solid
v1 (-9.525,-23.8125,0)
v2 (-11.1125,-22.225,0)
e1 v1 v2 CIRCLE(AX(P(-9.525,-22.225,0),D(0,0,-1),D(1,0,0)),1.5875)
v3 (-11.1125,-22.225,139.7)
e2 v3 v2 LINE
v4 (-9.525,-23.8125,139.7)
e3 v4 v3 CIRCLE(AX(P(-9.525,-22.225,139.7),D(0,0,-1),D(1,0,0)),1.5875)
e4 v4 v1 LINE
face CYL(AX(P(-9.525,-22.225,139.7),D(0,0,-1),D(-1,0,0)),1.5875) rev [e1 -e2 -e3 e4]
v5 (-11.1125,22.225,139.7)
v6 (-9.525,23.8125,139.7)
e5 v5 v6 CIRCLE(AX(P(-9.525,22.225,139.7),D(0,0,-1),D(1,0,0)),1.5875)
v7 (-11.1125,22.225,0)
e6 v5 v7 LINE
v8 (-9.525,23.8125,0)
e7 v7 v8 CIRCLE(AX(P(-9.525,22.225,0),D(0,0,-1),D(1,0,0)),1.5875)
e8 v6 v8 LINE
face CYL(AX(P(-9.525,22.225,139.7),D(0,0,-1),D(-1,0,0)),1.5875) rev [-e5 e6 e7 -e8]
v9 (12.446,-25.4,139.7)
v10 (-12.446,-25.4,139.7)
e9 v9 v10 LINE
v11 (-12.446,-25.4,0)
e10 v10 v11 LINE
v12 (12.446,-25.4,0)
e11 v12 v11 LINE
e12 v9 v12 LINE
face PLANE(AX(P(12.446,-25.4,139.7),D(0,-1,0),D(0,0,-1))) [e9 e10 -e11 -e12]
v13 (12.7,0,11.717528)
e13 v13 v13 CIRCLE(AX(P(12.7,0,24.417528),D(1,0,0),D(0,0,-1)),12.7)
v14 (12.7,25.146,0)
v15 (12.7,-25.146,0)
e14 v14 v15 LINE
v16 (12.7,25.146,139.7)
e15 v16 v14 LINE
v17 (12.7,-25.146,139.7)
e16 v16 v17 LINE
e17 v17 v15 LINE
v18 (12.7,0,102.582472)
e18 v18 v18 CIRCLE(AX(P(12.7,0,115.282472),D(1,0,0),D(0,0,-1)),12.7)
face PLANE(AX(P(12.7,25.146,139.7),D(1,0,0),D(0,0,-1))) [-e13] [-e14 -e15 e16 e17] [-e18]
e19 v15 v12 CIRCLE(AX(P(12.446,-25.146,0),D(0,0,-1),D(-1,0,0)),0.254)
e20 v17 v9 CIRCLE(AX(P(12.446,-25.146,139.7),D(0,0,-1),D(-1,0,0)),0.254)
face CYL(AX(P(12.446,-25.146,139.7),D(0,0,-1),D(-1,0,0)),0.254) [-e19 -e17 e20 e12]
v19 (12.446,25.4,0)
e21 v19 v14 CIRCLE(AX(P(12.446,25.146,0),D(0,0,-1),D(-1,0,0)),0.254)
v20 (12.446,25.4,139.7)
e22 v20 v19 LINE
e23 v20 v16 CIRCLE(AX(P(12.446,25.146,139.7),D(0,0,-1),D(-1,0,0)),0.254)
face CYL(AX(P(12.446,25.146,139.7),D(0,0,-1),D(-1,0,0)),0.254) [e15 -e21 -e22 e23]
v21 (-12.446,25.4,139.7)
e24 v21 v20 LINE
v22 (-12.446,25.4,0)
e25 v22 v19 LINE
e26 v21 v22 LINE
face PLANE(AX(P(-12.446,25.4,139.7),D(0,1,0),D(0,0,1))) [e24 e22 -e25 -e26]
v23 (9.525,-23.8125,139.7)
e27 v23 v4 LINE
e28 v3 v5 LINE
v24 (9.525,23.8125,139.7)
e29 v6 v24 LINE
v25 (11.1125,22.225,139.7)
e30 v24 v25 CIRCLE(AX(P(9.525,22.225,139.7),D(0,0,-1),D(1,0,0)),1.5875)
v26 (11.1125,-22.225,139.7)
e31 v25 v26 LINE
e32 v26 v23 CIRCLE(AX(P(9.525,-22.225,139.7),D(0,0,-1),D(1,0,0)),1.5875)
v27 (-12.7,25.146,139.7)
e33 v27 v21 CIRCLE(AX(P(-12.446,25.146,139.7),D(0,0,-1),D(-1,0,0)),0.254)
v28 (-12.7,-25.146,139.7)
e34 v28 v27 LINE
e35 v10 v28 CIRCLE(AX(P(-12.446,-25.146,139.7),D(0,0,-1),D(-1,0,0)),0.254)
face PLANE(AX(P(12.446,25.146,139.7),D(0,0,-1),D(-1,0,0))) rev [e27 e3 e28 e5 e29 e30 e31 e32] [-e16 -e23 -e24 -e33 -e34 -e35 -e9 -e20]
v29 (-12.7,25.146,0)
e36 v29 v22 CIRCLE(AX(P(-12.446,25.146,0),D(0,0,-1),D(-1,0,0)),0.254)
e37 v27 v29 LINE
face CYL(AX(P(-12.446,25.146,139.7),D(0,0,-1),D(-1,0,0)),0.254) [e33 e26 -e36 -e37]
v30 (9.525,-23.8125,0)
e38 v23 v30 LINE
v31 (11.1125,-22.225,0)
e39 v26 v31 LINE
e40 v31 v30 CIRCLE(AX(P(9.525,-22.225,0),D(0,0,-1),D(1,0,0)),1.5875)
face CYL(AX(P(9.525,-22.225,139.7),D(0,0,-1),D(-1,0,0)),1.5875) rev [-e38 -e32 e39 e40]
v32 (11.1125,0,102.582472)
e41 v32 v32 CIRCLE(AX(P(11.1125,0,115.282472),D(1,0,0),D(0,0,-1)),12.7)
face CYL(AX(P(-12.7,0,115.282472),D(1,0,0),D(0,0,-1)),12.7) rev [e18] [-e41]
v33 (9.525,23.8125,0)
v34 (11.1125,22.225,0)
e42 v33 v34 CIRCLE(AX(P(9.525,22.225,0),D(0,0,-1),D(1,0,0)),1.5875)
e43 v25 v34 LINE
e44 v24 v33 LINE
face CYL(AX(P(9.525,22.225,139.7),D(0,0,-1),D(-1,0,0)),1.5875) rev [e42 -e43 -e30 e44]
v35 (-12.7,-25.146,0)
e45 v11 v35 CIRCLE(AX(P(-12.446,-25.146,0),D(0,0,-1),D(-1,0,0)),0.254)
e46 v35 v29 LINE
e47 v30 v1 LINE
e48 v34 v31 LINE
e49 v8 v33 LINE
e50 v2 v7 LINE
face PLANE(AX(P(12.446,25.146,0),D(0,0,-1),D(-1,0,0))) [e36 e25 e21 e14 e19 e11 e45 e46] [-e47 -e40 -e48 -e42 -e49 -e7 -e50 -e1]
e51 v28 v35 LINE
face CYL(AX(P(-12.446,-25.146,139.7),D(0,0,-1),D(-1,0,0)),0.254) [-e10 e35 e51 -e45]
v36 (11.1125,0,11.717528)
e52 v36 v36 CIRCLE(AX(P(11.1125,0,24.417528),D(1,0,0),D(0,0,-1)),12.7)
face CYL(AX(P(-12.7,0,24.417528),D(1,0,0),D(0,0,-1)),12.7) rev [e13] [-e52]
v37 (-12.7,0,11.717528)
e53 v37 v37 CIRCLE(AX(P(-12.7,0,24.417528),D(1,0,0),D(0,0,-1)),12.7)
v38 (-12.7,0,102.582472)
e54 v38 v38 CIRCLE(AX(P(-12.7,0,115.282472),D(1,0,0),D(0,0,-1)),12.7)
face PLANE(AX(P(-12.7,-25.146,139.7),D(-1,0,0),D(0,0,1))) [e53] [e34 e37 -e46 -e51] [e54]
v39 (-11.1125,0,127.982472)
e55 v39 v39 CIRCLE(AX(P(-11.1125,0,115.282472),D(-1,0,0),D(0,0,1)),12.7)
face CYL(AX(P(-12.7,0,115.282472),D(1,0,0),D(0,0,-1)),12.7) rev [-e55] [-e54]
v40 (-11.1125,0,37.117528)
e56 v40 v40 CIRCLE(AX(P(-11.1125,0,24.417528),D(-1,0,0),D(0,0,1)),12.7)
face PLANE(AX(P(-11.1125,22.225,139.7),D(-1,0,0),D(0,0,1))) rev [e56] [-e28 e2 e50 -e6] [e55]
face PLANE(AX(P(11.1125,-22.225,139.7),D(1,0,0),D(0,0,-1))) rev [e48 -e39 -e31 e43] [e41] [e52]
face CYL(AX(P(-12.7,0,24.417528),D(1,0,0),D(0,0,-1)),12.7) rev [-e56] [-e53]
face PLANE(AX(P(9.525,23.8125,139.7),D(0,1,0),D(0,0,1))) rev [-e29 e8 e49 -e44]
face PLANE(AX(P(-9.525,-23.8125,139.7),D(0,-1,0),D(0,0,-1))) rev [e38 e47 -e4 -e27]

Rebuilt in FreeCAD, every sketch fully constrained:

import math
import FreeCAD as App
import Part
import Sketcher
Q = App.Units.Quantity

doc = App.newDocument("Part")
params = doc.addObject("Spreadsheet::Sheet", "Params")
for row, (alias, value) in enumerate([
    ("sketch1_radius", "0.01 in"),
    ("sketch1_radius2", "0.0625 in"),
    ("sketch1_width", "0.98 in"),
    ("sketch1_width2", "0.75 in"),
    ("sketch1_height", "1.75 in"),
    ("pad1_length", "5.5 in"),
    ("sketch2_diameter", "1 in"),
], start=1):
    params.set(f"A{row}", alias)
    params.set(f"B{row}", "=" + value)
    params.setAlias(f"B{row}", alias)

body = doc.addObject("PartDesign::Body", "Body")

# Sketch on XY plane
sketch1 = body.newObject("Sketcher::SketchObject", "Sketch")
sketch1.AttachmentSupport = (doc.getObject("XY_Plane"), [""])
sketch1.MapMode = "FlatFace"
sketch1.addGeometry(Part.LineSegment(App.Vector(12.7, 25.15, 0), App.Vector(12.7, -25.15, 0)), False)
sketch1.addGeometry(Part.ArcOfCircle(Part.Circle(App.Vector(12.45, -25.15, 0), App.Vector(0, 0, 1), 0.25), math.radians(-90), math.radians(0)), False)
sketch1.addGeometry(Part.LineSegment(App.Vector(12.45, -25.4, 0), App.Vector(-12.45, -25.4, 0)), False)
sketch1.addGeometry(Part.ArcOfCircle(Part.Circle(App.Vector(-12.45, -25.15, 0), App.Vector(0, 0, 1), 0.25), math.radians(-180), math.radians(-90)), False)
sketch1.addGeometry(Part.LineSegment(App.Vector(-12.7, -25.15, 0), App.Vector(-12.7, 25.15, 0)), False)
sketch1.addGeometry(Part.ArcOfCircle(Part.Circle(App.Vector(-12.45, 25.15, 0), App.Vector(0, 0, 1), 0.25), math.radians(90), math.radians(180)), False)
sketch1.addGeometry(Part.LineSegment(App.Vector(-12.45, 25.4, 0), App.Vector(12.45, 25.4, 0)), False)
sketch1.addGeometry(Part.ArcOfCircle(Part.Circle(App.Vector(12.45, 25.15, 0), App.Vector(0, 0, 1), 0.25), math.radians(0), math.radians(90)), False)
sketch1.addGeometry(Part.ArcOfCircle(Part.Circle(App.Vector(9.53, -22.23, 0), App.Vector(0, 0, 1), 1.59), math.radians(-90), math.radians(0)), False)
sketch1.addGeometry(Part.LineSegment(App.Vector(11.11, -22.23, 0), App.Vector(11.11, 22.23, 0)), False)
sketch1.addGeometry(Part.ArcOfCircle(Part.Circle(App.Vector(9.53, 22.23, 0), App.Vector(0, 0, 1), 1.59), math.radians(0), math.radians(90)), False)
sketch1.addGeometry(Part.LineSegment(App.Vector(9.53, 23.81, 0), App.Vector(-9.53, 23.81, 0)), False)
sketch1.addGeometry(Part.ArcOfCircle(Part.Circle(App.Vector(-9.53, 22.23, 0), App.Vector(0, 0, 1), 1.59), math.radians(90), math.radians(180)), False)
sketch1.addGeometry(Part.LineSegment(App.Vector(-11.11, 22.23, 0), App.Vector(-11.11, -22.23, 0)), False)
sketch1.addGeometry(Part.ArcOfCircle(Part.Circle(App.Vector(-9.53, -22.23, 0), App.Vector(0, 0, 1), 1.59), math.radians(180), math.radians(270)), False)
sketch1.addGeometry(Part.LineSegment(App.Vector(-9.53, -23.81, 0), App.Vector(9.53, -23.81, 0)), False)
sketch1.addConstraint(Sketcher.Constraint("Tangent", 0, 2, 1, 2))
sketch1.addConstraint(Sketcher.Constraint("Tangent", 1, 1, 2, 1))
sketch1.addConstraint(Sketcher.Constraint("Tangent", 2, 2, 3, 2))
sketch1.addConstraint(Sketcher.Constraint("Tangent", 3, 1, 4, 1))
sketch1.addConstraint(Sketcher.Constraint("Tangent", 4, 2, 5, 2))
sketch1.addConstraint(Sketcher.Constraint("Tangent", 5, 1, 6, 1))
sketch1.addConstraint(Sketcher.Constraint("Tangent", 6, 2, 7, 2))
sketch1.addConstraint(Sketcher.Constraint("Tangent", 7, 1, 0, 1))
sketch1.addConstraint(Sketcher.Constraint("Tangent", 8, 2, 9, 1))
sketch1.addConstraint(Sketcher.Constraint("Tangent", 9, 2, 10, 1))
sketch1.addConstraint(Sketcher.Constraint("Tangent", 10, 2, 11, 1))
sketch1.addConstraint(Sketcher.Constraint("Tangent", 11, 2, 12, 1))
sketch1.addConstraint(Sketcher.Constraint("Tangent", 12, 2, 13, 1))
sketch1.addConstraint(Sketcher.Constraint("Tangent", 13, 2, 14, 1))
sketch1.addConstraint(Sketcher.Constraint("Tangent", 14, 2, 15, 1))
sketch1.addConstraint(Sketcher.Constraint("Tangent", 15, 2, 8, 1))
sketch1.addConstraint(Sketcher.Constraint("Vertical", 0))
sketch1.addConstraint(Sketcher.Constraint("Horizontal", 2))
sketch1.addConstraint(Sketcher.Constraint("Vertical", 4))
sketch1.addConstraint(Sketcher.Constraint("Horizontal", 6))
sketch1.addConstraint(Sketcher.Constraint("Vertical", 9))
sketch1.addConstraint(Sketcher.Constraint("Horizontal", 11))
sketch1.addConstraint(Sketcher.Constraint("Vertical", 13))
sketch1.addConstraint(Sketcher.Constraint("Horizontal", 15))
sketch1.addConstraint(Sketcher.Constraint("Equal", 1, 3))
sketch1.addConstraint(Sketcher.Constraint("Equal", 3, 5))
sketch1.addConstraint(Sketcher.Constraint("Equal", 5, 7))
sketch1.addConstraint(Sketcher.Constraint("Equal", 8, 10))
sketch1.addConstraint(Sketcher.Constraint("Equal", 10, 12))
sketch1.addConstraint(Sketcher.Constraint("Equal", 12, 14))
sketch1.addConstraint(Sketcher.Constraint("Symmetric", 1, 3, 5, 3, -1, 1))
sketch1.addConstraint(Sketcher.Constraint("Symmetric", 8, 3, 12, 3, -1, 1))
sketch1.addConstraint(Sketcher.Constraint("Radius", 1, Q("0.01 in")))
sketch1.addConstraint(Sketcher.Constraint("DistanceY", 1, 1, -1, 1, Q("1 in")))
sketch1.addConstraint(Sketcher.Constraint("Radius", 8, Q("0.0625 in")))
sketch1.addConstraint(Sketcher.Constraint("DistanceX", 2, 2, 2, 1, Q("0.98 in")))
sketch1.addConstraint(Sketcher.Constraint("DistanceX", 11, 2, 11, 1, Q("0.75 in")))
sketch1.addConstraint(Sketcher.Constraint("DistanceY", 9, 1, 9, 2, Q("1.75 in")))
sketch1.setExpression("Constraints[32]", "Params.sketch1_radius")
sketch1.setExpression("Constraints[34]", "Params.sketch1_radius2")
sketch1.setExpression("Constraints[35]", "Params.sketch1_width")
sketch1.setExpression("Constraints[36]", "Params.sketch1_width2")
sketch1.setExpression("Constraints[37]", "Params.sketch1_height")
pad1 = body.newObject("PartDesign::Pad", "Pad")
pad1.Profile = sketch1
pad1.setExpression("Length", "Params.pad1_length")

# Sketch on YZ plane
sketch2 = body.newObject("Sketcher::SketchObject", "Sketch001")
sketch2.AttachmentSupport = (doc.getObject("YZ_Plane"), [""])
sketch2.MapMode = "FlatFace"
sketch2.AttachmentOffset = App.Placement(App.Vector(0, 0, 0.5 * 25.4), App.Rotation())
sketch2.addGeometry(Part.Circle(App.Vector(0, 115, 0), App.Vector(0, 0, 1), 13), False)
sketch2.addGeometry(Part.Circle(App.Vector(0, 24, 0), App.Vector(0, 0, 1), 13), False)
sketch2.addConstraint(Sketcher.Constraint("Equal", 0, 1))
sketch2.addConstraint(Sketcher.Constraint("PointOnObject", 0, 3, -2))
sketch2.addConstraint(Sketcher.Constraint("PointOnObject", 1, 3, -2))
sketch2.addConstraint(Sketcher.Constraint("Diameter", 0, Q("1 in")))
sketch2.addConstraint(Sketcher.Constraint("DistanceY", -1, 1, 0, 3, 115.282472))
sketch2.addConstraint(Sketcher.Constraint("DistanceY", -1, 1, 1, 3, 24.417528))
sketch2.setExpression("Constraints[3]", "Params.sketch2_diameter")
pocket1 = body.newObject("PartDesign::Pocket", "Pocket")
pocket1.Profile = sketch2
pocket1.Type = "ThroughAll"

doc.recompute()
